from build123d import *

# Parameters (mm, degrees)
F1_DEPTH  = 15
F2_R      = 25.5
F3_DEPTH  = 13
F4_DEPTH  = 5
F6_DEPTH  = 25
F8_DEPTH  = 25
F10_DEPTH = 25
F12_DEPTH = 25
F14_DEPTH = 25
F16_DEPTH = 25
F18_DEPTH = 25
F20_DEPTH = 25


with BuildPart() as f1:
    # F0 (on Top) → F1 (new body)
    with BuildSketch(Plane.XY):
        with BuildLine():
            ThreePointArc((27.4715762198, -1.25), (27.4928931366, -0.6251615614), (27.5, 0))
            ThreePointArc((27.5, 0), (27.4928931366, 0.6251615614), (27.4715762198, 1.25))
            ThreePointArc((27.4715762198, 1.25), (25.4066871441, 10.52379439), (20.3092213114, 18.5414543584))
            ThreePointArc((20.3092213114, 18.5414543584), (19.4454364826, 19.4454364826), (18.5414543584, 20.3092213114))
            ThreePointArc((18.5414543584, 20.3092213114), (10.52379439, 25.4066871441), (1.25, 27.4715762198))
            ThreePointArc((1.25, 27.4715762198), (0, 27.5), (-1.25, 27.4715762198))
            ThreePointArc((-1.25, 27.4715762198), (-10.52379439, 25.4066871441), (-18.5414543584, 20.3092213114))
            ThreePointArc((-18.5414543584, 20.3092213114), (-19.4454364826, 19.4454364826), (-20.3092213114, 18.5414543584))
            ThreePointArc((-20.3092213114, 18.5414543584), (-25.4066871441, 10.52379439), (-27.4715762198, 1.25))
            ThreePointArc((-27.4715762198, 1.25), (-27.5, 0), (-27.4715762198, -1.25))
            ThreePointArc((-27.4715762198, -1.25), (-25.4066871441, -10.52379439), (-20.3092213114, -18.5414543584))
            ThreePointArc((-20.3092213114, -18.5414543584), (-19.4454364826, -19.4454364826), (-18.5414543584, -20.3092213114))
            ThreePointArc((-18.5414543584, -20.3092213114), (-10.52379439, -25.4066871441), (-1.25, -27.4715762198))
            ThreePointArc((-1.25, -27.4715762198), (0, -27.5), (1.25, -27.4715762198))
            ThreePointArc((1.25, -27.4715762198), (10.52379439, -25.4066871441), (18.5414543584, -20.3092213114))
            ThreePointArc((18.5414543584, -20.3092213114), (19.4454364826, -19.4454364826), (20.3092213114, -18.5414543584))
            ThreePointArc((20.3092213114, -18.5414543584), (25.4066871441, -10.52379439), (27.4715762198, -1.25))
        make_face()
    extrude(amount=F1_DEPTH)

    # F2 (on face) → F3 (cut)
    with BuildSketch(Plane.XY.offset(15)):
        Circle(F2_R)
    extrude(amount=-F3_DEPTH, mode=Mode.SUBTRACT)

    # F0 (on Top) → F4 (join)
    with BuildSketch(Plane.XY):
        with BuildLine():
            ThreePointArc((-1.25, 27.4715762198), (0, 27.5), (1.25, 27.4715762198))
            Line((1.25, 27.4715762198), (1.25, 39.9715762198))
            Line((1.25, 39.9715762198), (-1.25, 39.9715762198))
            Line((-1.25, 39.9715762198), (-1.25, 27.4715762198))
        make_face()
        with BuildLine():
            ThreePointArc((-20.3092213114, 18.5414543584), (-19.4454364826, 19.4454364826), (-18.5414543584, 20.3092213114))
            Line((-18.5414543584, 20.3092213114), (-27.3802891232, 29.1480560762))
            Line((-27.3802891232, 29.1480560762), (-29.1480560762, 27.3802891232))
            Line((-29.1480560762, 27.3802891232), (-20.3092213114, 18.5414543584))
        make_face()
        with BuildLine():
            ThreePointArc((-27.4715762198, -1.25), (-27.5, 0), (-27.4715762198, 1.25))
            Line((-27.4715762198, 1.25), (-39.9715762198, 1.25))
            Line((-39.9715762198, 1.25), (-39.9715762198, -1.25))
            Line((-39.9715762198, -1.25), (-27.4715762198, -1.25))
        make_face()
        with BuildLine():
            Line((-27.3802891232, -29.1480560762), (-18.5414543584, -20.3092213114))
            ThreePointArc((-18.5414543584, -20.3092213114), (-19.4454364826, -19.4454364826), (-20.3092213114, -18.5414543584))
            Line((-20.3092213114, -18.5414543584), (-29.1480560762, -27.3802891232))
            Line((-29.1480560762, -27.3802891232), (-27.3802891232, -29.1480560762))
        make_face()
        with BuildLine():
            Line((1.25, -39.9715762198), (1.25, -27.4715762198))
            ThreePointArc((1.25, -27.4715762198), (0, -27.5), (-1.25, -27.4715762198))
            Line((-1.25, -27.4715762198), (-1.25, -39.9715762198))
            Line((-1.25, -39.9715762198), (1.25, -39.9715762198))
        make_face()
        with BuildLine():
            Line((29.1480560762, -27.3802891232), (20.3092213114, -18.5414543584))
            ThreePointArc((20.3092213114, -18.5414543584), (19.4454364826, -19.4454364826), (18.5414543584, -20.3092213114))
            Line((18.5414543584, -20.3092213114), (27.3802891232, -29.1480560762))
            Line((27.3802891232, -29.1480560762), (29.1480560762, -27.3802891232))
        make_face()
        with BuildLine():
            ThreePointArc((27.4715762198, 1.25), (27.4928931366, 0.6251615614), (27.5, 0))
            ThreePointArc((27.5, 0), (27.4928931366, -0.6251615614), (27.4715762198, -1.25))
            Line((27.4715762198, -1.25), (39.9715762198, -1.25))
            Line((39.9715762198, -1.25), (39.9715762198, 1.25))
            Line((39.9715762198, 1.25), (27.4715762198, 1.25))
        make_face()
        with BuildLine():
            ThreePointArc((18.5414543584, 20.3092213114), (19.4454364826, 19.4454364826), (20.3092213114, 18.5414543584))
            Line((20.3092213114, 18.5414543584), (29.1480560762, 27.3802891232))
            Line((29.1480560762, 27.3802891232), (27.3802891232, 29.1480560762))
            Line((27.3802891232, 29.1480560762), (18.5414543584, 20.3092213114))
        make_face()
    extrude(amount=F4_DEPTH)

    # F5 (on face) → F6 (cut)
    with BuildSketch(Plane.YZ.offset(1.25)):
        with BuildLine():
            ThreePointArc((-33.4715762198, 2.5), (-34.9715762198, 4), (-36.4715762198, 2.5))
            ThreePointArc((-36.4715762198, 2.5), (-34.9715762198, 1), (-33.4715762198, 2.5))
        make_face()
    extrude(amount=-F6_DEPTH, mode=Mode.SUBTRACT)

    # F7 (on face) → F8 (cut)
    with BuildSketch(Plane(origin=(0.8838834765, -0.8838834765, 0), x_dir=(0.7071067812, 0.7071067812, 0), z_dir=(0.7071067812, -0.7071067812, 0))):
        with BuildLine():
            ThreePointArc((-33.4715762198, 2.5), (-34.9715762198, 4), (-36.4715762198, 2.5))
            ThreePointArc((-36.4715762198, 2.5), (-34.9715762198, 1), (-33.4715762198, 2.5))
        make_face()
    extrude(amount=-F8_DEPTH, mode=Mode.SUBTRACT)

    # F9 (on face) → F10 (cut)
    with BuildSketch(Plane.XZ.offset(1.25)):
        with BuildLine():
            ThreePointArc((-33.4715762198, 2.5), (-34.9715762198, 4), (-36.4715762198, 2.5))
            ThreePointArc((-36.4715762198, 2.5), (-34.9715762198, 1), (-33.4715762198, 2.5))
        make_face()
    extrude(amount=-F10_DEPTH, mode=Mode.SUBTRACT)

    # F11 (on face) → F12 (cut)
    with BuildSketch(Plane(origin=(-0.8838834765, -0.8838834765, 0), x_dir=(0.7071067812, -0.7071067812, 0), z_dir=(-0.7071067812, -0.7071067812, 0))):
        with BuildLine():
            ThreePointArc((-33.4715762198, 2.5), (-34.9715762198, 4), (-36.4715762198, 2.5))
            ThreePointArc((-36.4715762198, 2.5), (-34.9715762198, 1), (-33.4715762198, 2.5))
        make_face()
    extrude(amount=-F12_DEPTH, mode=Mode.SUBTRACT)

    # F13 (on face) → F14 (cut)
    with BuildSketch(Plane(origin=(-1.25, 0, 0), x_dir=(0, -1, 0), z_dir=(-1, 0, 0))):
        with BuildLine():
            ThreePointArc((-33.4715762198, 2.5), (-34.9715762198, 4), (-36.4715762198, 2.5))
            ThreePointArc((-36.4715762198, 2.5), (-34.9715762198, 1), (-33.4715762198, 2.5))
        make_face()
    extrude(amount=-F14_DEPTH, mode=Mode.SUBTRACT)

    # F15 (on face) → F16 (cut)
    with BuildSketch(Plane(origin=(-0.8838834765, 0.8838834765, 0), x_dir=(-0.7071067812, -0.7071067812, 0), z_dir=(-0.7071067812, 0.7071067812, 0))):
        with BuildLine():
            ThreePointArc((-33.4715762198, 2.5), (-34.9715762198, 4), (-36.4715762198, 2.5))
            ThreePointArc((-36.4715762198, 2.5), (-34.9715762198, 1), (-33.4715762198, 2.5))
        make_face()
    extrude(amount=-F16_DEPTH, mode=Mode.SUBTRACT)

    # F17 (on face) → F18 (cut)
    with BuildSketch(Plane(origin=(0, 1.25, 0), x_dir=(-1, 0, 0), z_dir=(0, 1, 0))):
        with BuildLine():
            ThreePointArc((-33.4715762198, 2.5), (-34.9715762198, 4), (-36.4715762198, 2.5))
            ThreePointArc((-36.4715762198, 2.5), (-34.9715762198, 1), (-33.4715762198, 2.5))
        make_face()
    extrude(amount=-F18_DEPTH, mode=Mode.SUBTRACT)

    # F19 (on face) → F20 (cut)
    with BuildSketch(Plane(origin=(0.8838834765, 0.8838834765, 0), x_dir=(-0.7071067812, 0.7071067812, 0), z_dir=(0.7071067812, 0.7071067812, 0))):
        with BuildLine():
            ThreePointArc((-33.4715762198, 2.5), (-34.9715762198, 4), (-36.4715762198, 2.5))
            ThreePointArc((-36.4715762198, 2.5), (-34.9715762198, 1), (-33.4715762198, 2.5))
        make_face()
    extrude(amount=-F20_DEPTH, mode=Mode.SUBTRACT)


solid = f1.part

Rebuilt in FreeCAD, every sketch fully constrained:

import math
import FreeCAD as App
import Part
import Sketcher
Q = App.Units.Quantity

doc = App.newDocument("Part")
params = doc.addObject("Spreadsheet::Sheet", "Params")
for row, (alias, value) in enumerate([
    ("sketch1_radius", "27.5 mm"),
    ("pad1_length", "15 mm"),
    ("sketch2_diameter", "51 mm"),
    ("pocket1_length", "13 mm"),
    ("sketch3_radius", "27.5 mm"),
    ("sketch3_width", "2.5 mm"),
    ("sketch3_width2", "12.5 mm"),
    ("sketch3_length", "12.5 mm"),
    ("sketch3_length2", "2.5 mm"),
    ("pad2_length", "5 mm"),
    ("sketch4_diameter", "3 mm"),
    ("pocket2_length", "25 mm"),
    ("sketch5_diameter", "3 mm"),
    ("pocket3_length", "25 mm"),
    ("sketch6_diameter", "3 mm"),
    ("pocket4_length", "25 mm"),
    ("sketch7_diameter", "3 mm"),
    ("pocket5_length", "25 mm"),
    ("sketch8_diameter", "3 mm"),
    ("pocket6_length", "25 mm"),
    ("sketch9_diameter", "3 mm"),
    ("pocket7_length", "25 mm"),
    ("sketch10_diameter", "3 mm"),
    ("pocket8_length", "25 mm"),
    ("sketch11_diameter", "3 mm"),
    ("pocket9_length", "25 mm"),
], start=1):
    params.set(f"A{row}", alias)
    params.set(f"B{row}", "=" + value)
    params.setAlias(f"B{row}", alias)

body = doc.addObject("PartDesign::Body", "Body")

# Sketch on XY plane
sketch1 = body.newObject("Sketcher::SketchObject", "Sketch")
sketch1.AttachmentSupport = (doc.getObject("XY_Plane"), [""])
sketch1.MapMode = "FlatFace"
sketch1.addGeometry([
    Part.ArcOfCircle(Part.Circle(App.Vector(0, 0, 0), App.Vector(0, 0, 1), 27.5), math.radians(-2.61), math.radians(0)),  # 0
    Part.ArcOfCircle(Part.Circle(App.Vector(0, 0, 0), App.Vector(0, 0, 1), 27.5), math.radians(0), math.radians(2.61)),  # 1
    Part.ArcOfCircle(Part.Circle(App.Vector(0, 0, 0), App.Vector(0, 0, 1), 27.5), math.radians(3), math.radians(42)),  # 2
    Part.ArcOfCircle(Part.Circle(App.Vector(0, 0, 0), App.Vector(0, 0, 1), 27.5), math.radians(42.39), math.radians(47.61)),  # 3
    Part.ArcOfCircle(Part.Circle(App.Vector(0, 0, 0), App.Vector(0, 0, 1), 27.5), math.radians(48), math.radians(87)),  # 4
    Part.ArcOfCircle(Part.Circle(App.Vector(0, 0, 0), App.Vector(0, 0, 1), 27.5), math.radians(87.39), math.radians(92.61)),  # 5
    Part.ArcOfCircle(Part.Circle(App.Vector(0, 0, 0), App.Vector(0, 0, 1), 27.5), math.radians(93), math.radians(132)),  # 6
    Part.ArcOfCircle(Part.Circle(App.Vector(0, 0, 0), App.Vector(0, 0, 1), 27.5), math.radians(132.39), math.radians(137.61)),  # 7
    Part.ArcOfCircle(Part.Circle(App.Vector(0, 0, 0), App.Vector(0, 0, 1), 27.5), math.radians(138), math.radians(177)),  # 8
    Part.ArcOfCircle(Part.Circle(App.Vector(0, 0, 0), App.Vector(0, 0, 1), 27.5), math.radians(177.39), math.radians(182.61)),  # 9
    Part.ArcOfCircle(Part.Circle(App.Vector(0, 0, 0), App.Vector(0, 0, 1), 27.5), math.radians(-177), math.radians(-138)),  # 10
    Part.ArcOfCircle(Part.Circle(App.Vector(0, 0, 0), App.Vector(0, 0, 1), 27.5), math.radians(-137.61), math.radians(-132.39)),  # 11
    Part.ArcOfCircle(Part.Circle(App.Vector(0, 0, 0), App.Vector(0, 0, 1), 27.5), math.radians(-132), math.radians(-93)),  # 12
    Part.ArcOfCircle(Part.Circle(App.Vector(0, 0, 0), App.Vector(0, 0, 1), 27.5), math.radians(-92.61), math.radians(-87.39)),  # 13
    Part.ArcOfCircle(Part.Circle(App.Vector(0, 0, 0), App.Vector(0, 0, 1), 27.5), math.radians(-87), math.radians(-48)),  # 14
    Part.ArcOfCircle(Part.Circle(App.Vector(0, 0, 0), App.Vector(0, 0, 1), 27.5), math.radians(-47.61), math.radians(-42.39)),  # 15
    Part.ArcOfCircle(Part.Circle(App.Vector(0, 0, 0), App.Vector(0, 0, 1), 27.5), math.radians(-42), math.radians(-3)),  # 16
], False)
sketch1.addConstraint([
    Sketcher.Constraint("Tangent", 0, 2, 1, 1),
    Sketcher.Constraint("Tangent", 1, 2, 2, 1),
    Sketcher.Constraint("Tangent", 2, 2, 3, 1),
    Sketcher.Constraint("Tangent", 3, 2, 4, 1),
    Sketcher.Constraint("Tangent", 4, 2, 5, 1),
    Sketcher.Constraint("Tangent", 5, 2, 6, 1),
    Sketcher.Constraint("Tangent", 6, 2, 7, 1),
    Sketcher.Constraint("Tangent", 7, 2, 8, 1),
    Sketcher.Constraint("Tangent", 8, 2, 9, 1),
    Sketcher.Constraint("Tangent", 9, 2, 10, 1),
    Sketcher.Constraint("Tangent", 10, 2, 11, 1),
    Sketcher.Constraint("Tangent", 11, 2, 12, 1),
    Sketcher.Constraint("Tangent", 12, 2, 13, 1),
    Sketcher.Constraint("Tangent", 13, 2, 14, 1),
    Sketcher.Constraint("Tangent", 14, 2, 15, 1),
    Sketcher.Constraint("Tangent", 15, 2, 16, 1),
    Sketcher.Constraint("Tangent", 16, 2, 0, 1),
    Sketcher.Constraint("Coincident", 0, 3, -1, 1),
    Sketcher.Constraint("Coincident", 2, 3, -1, 1),
    Sketcher.Constraint("Coincident", 4, 3, -1, 1),
    Sketcher.Constraint("Coincident", 6, 3, -1, 1),
    Sketcher.Constraint("Coincident", 8, 3, -1, 1),
    Sketcher.Constraint("Coincident", 10, 3, -1, 1),
    Sketcher.Constraint("Coincident", 12, 3, -1, 1),
    Sketcher.Constraint("Coincident", 14, 3, -1, 1),
    Sketcher.Constraint("PointOnObject", 0, 2, -1),
    Sketcher.Constraint("Horizontal", 4, 2, 5, 2),
    Sketcher.Constraint("Horizontal", 3, 2, 6, 2),
    Sketcher.Constraint("Horizontal", 2, 2, 7, 2),
    Sketcher.Constraint("Horizontal", 1, 2, 8, 2),
    Sketcher.Constraint("Horizontal", 12, 2, 13, 2),
    Sketcher.Constraint("Horizontal", 11, 2, 14, 2),
    Sketcher.Constraint("Horizontal", 10, 2, 15, 2),
    Sketcher.Constraint("Horizontal", 9, 2, 16, 2),
    Sketcher.Constraint("Vertical", 8, 2, 9, 2),
    Sketcher.Constraint("Vertical", 7, 2, 10, 2),
    Sketcher.Constraint("Vertical", 6, 2, 11, 2),
    Sketcher.Constraint("Vertical", 5, 2, 12, 2),
    Sketcher.Constraint("Radius", 0, Q("27.5 mm")),
    Sketcher.Constraint("DistanceX", 5, 2, 4, 2, Q("2.5 mm")),
    Sketcher.Constraint("DistanceY", 9, 2, 8, 2, Q("2.5 mm")),
    Sketcher.Constraint("DistanceX", -1, 1, 2, 2, Q("20.309221 mm")),
    Sketcher.Constraint("DistanceY", -1, 1, 3, 2, Q("20.309221 mm")),
])
sketch1.setExpression("Constraints[38]", "Params.sketch1_radius")
pad1 = body.newObject("PartDesign::Pad", "Pad")
pad1.Profile = sketch1
pad1.setExpression("Length", "Params.pad1_length")

# Sketch on XY plane
sketch2 = body.newObject("Sketcher::SketchObject", "Sketch001")
sketch2.AttachmentSupport = (doc.getObject("XY_Plane"), [""])
sketch2.MapMode = "FlatFace"
sketch2.AttachmentOffset = App.Placement(App.Vector(0, 0, 15), App.Rotation())
sketch2.addGeometry(Part.Circle(App.Vector(0, 0, 0), App.Vector(0, 0, 1), 26), False)
sketch2.addConstraint([
    Sketcher.Constraint("Coincident", 0, 3, -1, 1),
    Sketcher.Constraint("Diameter", 0, Q("51 mm")),
])
sketch2.setExpression("Constraints[1]", "Params.sketch2_diameter")
pocket1 = body.newObject("PartDesign::Pocket", "Pocket")
pocket1.Profile = sketch2
pocket1.setExpression("Length", "Params.pocket1_length")

# Sketch on XY plane
sketch3 = body.newObject("Sketcher::SketchObject", "Sketch002")
sketch3.AttachmentSupport = (doc.getObject("XY_Plane"), [""])
sketch3.MapMode = "FlatFace"
sketch3.addGeometry([
    Part.ArcOfCircle(Part.Circle(App.Vector(0, 0, 0), App.Vector(0, 0, 1), 27.5), math.radians(87.39), math.radians(92.61)),  # 0
    Part.LineSegment(App.Vector(1.2, 27.5, 0), App.Vector(1.2, 40, 0)),  # 1
    Part.LineSegment(App.Vector(1.2, 40, 0), App.Vector(-1.2, 40, 0)),  # 2
    Part.LineSegment(App.Vector(-1.2, 40, 0), App.Vector(-1.2, 27.5, 0)),  # 3
    Part.ArcOfCircle(Part.Circle(App.Vector(0, 0, 0), App.Vector(0, 0, 1), 27.5), math.radians(132.39), math.radians(137.61)),  # 4
    Part.LineSegment(App.Vector(-18.5, 20.3, 0), App.Vector(-27.4, 29.1, 0)),  # 5
    Part.LineSegment(App.Vector(-27.4, 29.1, 0), App.Vector(-29.1, 27.4, 0)),  # 6
    Part.LineSegment(App.Vector(-29.1, 27.4, 0), App.Vector(-20.3, 18.5, 0)),  # 7
    Part.ArcOfCircle(Part.Circle(App.Vector(0, 0, 0), App.Vector(0, 0, 1), 27.5), math.radians(177.39), math.radians(182.61)),  # 8
    Part.LineSegment(App.Vector(-27.5, 1.2, 0), App.Vector(-40, 1.2, 0)),  # 9
    Part.LineSegment(App.Vector(-40, 1.2, 0), App.Vector(-40, -1.2, 0)),  # 10
    Part.LineSegment(App.Vector(-40, -1.2, 0), App.Vector(-27.5, -1.2, 0)),  # 11
    Part.LineSegment(App.Vector(-27.4, -29.1, 0), App.Vector(-18.5, -20.3, 0)),  # 12
    Part.ArcOfCircle(Part.Circle(App.Vector(0, 0, 0), App.Vector(0, 0, 1), 27.5), math.radians(-137.61), math.radians(-132.39)),  # 13
    Part.LineSegment(App.Vector(-20.3, -18.5, 0), App.Vector(-29.1, -27.4, 0)),  # 14
    Part.LineSegment(App.Vector(-29.1, -27.4, 0), App.Vector(-27.4, -29.1, 0)),  # 15
    Part.LineSegment(App.Vector(1.2, -40, 0), App.Vector(1.2, -27.5, 0)),  # 16
    Part.ArcOfCircle(Part.Circle(App.Vector(0, 0, 0), App.Vector(0, 0, 1), 27.5), math.radians(-92.61), math.radians(-87.39)),  # 17
    Part.LineSegment(App.Vector(-1.2, -27.5, 0), App.Vector(-1.2, -40, 0)),  # 18
    Part.LineSegment(App.Vector(-1.2, -40, 0), App.Vector(1.2, -40, 0)),  # 19
    Part.LineSegment(App.Vector(29.1, -27.4, 0), App.Vector(20.3, -18.5, 0)),  # 20
    Part.ArcOfCircle(Part.Circle(App.Vector(0, 0, 0), App.Vector(0, 0, 1), 27.5), math.radians(-47.61), math.radians(-42.39)),  # 21
    Part.LineSegment(App.Vector(18.5, -20.3, 0), App.Vector(27.4, -29.1, 0)),  # 22
    Part.LineSegment(App.Vector(27.4, -29.1, 0), App.Vector(29.1, -27.4, 0)),  # 23
    Part.ArcOfCircle(Part.Circle(App.Vector(0, 0, 0), App.Vector(0, 0, 1), 27.5), math.radians(0), math.radians(2.61)),  # 24
    Part.ArcOfCircle(Part.Circle(App.Vector(0, 0, 0), App.Vector(0, 0, 1), 27.5), math.radians(-2.61), math.radians(0)),  # 25
    Part.LineSegment(App.Vector(27.5, -1.2, 0), App.Vector(40, -1.2, 0)),  # 26
    Part.LineSegment(App.Vector(40, -1.2, 0), App.Vector(40, 1.2, 0)),  # 27
    Part.LineSegment(App.Vector(40, 1.2, 0), App.Vector(27.5, 1.2, 0)),  # 28
    Part.ArcOfCircle(Part.Circle(App.Vector(0, 0, 0), App.Vector(0, 0, 1), 27.5), math.radians(42.39), math.radians(47.61)),  # 29
    Part.LineSegment(App.Vector(20.3, 18.5, 0), App.Vector(29.1, 27.4, 0)),  # 30
    Part.LineSegment(App.Vector(29.1, 27.4, 0), App.Vector(27.4, 29.1, 0)),  # 31
    Part.LineSegment(App.Vector(27.4, 29.1, 0), App.Vector(18.5, 20.3, 0)),  # 32
], False)
sketch3.addConstraint([
    Sketcher.Constraint("Coincident", 0, 1, 1, 1),
    Sketcher.Constraint("Coincident", 1, 2, 2, 1),
    Sketcher.Constraint("Coincident", 2, 2, 3, 1),
    Sketcher.Constraint("Coincident", 3, 2, 0, 2),
    Sketcher.Constraint("Coincident", 4, 1, 5, 1),
    Sketcher.Constraint("Coincident", 5, 2, 6, 1),
    Sketcher.Constraint("Coincident", 6, 2, 7, 1),
    Sketcher.Constraint("Coincident", 7, 2, 4, 2),
    Sketcher.Constraint("Coincident", 8, 1, 9, 1),
    Sketcher.Constraint("Coincident", 9, 2, 10, 1),
    Sketcher.Constraint("Coincident", 10, 2, 11, 1),
    Sketcher.Constraint("Coincident", 11, 2, 8, 2),
    Sketcher.Constraint("Coincident", 12, 2, 13, 2),
    Sketcher.Constraint("Coincident", 13, 1, 14, 1),
    Sketcher.Constraint("Coincident", 14, 2, 15, 1),
    Sketcher.Constraint("Coincident", 15, 2, 12, 1),
    Sketcher.Constraint("Coincident", 16, 2, 17, 2),
    Sketcher.Constraint("Coincident", 17, 1, 18, 1),
    Sketcher.Constraint("Coincident", 18, 2, 19, 1),
    Sketcher.Constraint("Coincident", 19, 2, 16, 1),
    Sketcher.Constraint("Coincident", 20, 2, 21, 2),
    Sketcher.Constraint("Coincident", 21, 1, 22, 1),
    Sketcher.Constraint("Coincident", 22, 2, 23, 1),
    Sketcher.Constraint("Coincident", 23, 2, 20, 1),
    Sketcher.Constraint("Tangent", 24, 1, 25, 2),
    Sketcher.Constraint("Coincident", 25, 1, 26, 1),
    Sketcher.Constraint("Coincident", 26, 2, 27, 1),
    Sketcher.Constraint("Coincident", 27, 2, 28, 1),
    Sketcher.Constraint("Coincident", 28, 2, 24, 2),
    Sketcher.Constraint("Coincident", 29, 1, 30, 1),
    Sketcher.Constraint("Coincident", 30, 2, 31, 1),
    Sketcher.Constraint("Coincident", 31, 2, 32, 1),
    Sketcher.Constraint("Coincident", 32, 2, 29, 2),
    Sketcher.Constraint("Vertical", 1),
    Sketcher.Constraint("Horizontal", 2),
    Sketcher.Constraint("Vertical", 3),
    Sketcher.Constraint("Horizontal", 9),
    Sketcher.Constraint("Vertical", 10),
    Sketcher.Constraint("Horizontal", 11),
    Sketcher.Constraint("Vertical", 16),
    Sketcher.Constraint("Vertical", 18),
    Sketcher.Constraint("Horizontal", 19),
    Sketcher.Constraint("Horizontal", 26),
    Sketcher.Constraint("Vertical", 27),
    Sketcher.Constraint("Horizontal", 28),
    Sketcher.Constraint("Coincident", 0, 3, -1, 1),
    Sketcher.Constraint("Coincident", 4, 3, -1, 1),
    Sketcher.Constraint("Coincident", 8, 3, -1, 1),
    Sketcher.Constraint("Coincident", 13, 3, -1, 1),
    Sketcher.Constraint("Coincident", 17, 3, -1, 1),
    Sketcher.Constraint("Coincident", 21, 3, -1, 1),
    Sketcher.Constraint("Coincident", 24, 3, -1, 1),
    Sketcher.Constraint("Coincident", 29, 3, -1, 1),
    Sketcher.Constraint("Equal", 0, 4),
    Sketcher.Constraint("Equal", 4, 8),
    Sketcher.Constraint("Equal", 8, 13),
    Sketcher.Constraint("Equal", 13, 17),
    Sketcher.Constraint("Equal", 17, 21),
    Sketcher.Constraint("Equal", 21, 24),
    Sketcher.Constraint("Equal", 24, 25),
    Sketcher.Constraint("Equal", 25, 29),
    Sketcher.Constraint("Symmetric", 1, 2, 18, 2, -1, 1),
    Sketcher.Constraint("Symmetric", 5, 2, 22, 2, -1, 1),
    Sketcher.Constraint("Symmetric", 6, 2, 23, 2, -1, 1),
    Sketcher.Constraint("Symmetric", 9, 2, 26, 2, -1, 1),
    Sketcher.Constraint("Symmetric", 14, 2, 30, 2, -1, 1),
    Sketcher.Constraint("Symmetric", 15, 2, 31, 2, -1, 1),
    Sketcher.Constraint("Symmetric", 15, 2, 22, 2, -2),
    Sketcher.Constraint("Symmetric", 14, 2, 23, 2, -2),
    Sketcher.Constraint("PointOnObject", 24, 1, -1),
    Sketcher.Constraint("Perpendicular", 5, 6),
    Sketcher.Constraint("Perpendicular", 6, 7),
    Sketcher.Constraint("Perpendicular", 7, 12),
    Sketcher.Constraint("Parallel", 12, 14),
    Sketcher.Constraint("Perpendicular", 14, 15),
    Sketcher.Constraint("Parallel", 15, 20),
    Sketcher.Constraint("Parallel", 20, 22),
    Sketcher.Constraint("Parallel", 23, 30),
    Sketcher.Constraint("Perpendicular", 31, 32),
    Sketcher.Constraint("Horizontal", 0, 1, 3, 2),
    Sketcher.Constraint("Horizontal", 16, 2, 17, 1),
    Sketcher.Constraint("Horizontal", 11, 2, 25, 1),
    Sketcher.Constraint("Horizontal", 9, 2, 27, 2),
    Sketcher.Constraint("Equal", 28, 1),
    Sketcher.Constraint("Equal", 19, 10),
    Sketcher.Constraint("Equal", 5, 7),
    Sketcher.Constraint("Radius", 0, Q("27.5 mm")),
    Sketcher.Constraint("DistanceX", 2, 2, 2, 1, Q("2.5 mm")),
    Sketcher.Constraint("DistanceX", 9, 2, 9, 1, Q("12.5 mm")),
    Sketcher.Constraint("Distance", 5, Q("12.5 mm")),
    Sketcher.Constraint("Distance", 6, Q("2.5 mm")),
])
sketch3.setExpression("Constraints[86]", "Params.sketch3_radius")
sketch3.setExpression("Constraints[87]", "Params.sketch3_width")
sketch3.setExpression("Constraints[88]", "Params.sketch3_width2")
sketch3.setExpression("Constraints[89]", "Params.sketch3_length")
sketch3.setExpression("Constraints[90]", "Params.sketch3_length2")
pad2 = body.newObject("PartDesign::Pad", "Pad001")
pad2.Profile = sketch3
pad2.setExpression("Length", "Params.pad2_length")

# Sketch on YZ plane
sketch4 = body.newObject("Sketcher::SketchObject", "Sketch003")
sketch4.AttachmentSupport = (doc.getObject("YZ_Plane"), [""])
sketch4.MapMode = "FlatFace"
sketch4.AttachmentOffset = App.Placement(App.Vector(0, 0, 1.25), App.Rotation())
sketch4.addGeometry(Part.Circle(App.Vector(-35, 2.5, 0), App.Vector(0, 0, 1), 1.5), False)
sketch4.addConstraint([
    Sketcher.Constraint("Diameter", 0, Q("3 mm")),
    Sketcher.Constraint("DistanceY", -1, 1, 0, 3, Q("2.5 mm")),
    Sketcher.Constraint("DistanceX", 0, 3, -1, 1, Q("34.971576 mm")),
])
sketch4.setExpression("Constraints[0]", "Params.sketch4_diameter")
pocket2 = body.newObject("PartDesign::Pocket", "Pocket001")
pocket2.Profile = sketch4
pocket2.setExpression("Length", "Params.pocket2_length")

# Sketch on an angled plane
sketch5 = body.newObject("Sketcher::SketchObject", "Sketch004")
sketch5.Placement = App.Placement(App.Vector(0.883883, -0.883883, 0), App.Rotation(App.Vector(0.707106781, 0.707106781, 0), App.Vector(0, 0, 0.999999999), App.Vector(0.707106781, -0.707106781, 0), "ZXY"))
sketch5.addGeometry(Part.Circle(App.Vector(-35, 2.5, 0), App.Vector(0, 0, 1), 1.5), False)
sketch5.addConstraint([
    Sketcher.Constraint("Diameter", 0, Q("3 mm")),
    Sketcher.Constraint("DistanceY", -1, 1, 0, 3, Q("2.5 mm")),
    Sketcher.Constraint("DistanceX", 0, 3, -1, 1, Q("34.971576 mm")),
])
sketch5.setExpression("Constraints[0]", "Params.sketch5_diameter")
pocket3 = body.newObject("PartDesign::Pocket", "Pocket002")
pocket3.Profile = sketch5
pocket3.setExpression("Length", "Params.pocket3_length")

# Sketch on XZ plane
sketch6 = body.newObject("Sketcher::SketchObject", "Sketch005")
sketch6.AttachmentSupport = (doc.getObject("XZ_Plane"), [""])
sketch6.MapMode = "FlatFace"
sketch6.AttachmentOffset = App.Placement(App.Vector(0, 0, 1.25), App.Rotation())
sketch6.addGeometry(Part.Circle(App.Vector(-35, 2.5, 0), App.Vector(0, 0, 1), 1.5), False)
sketch6.addConstraint([
    Sketcher.Constraint("Diameter", 0, Q("3 mm")),
    Sketcher.Constraint("DistanceY", -1, 1, 0, 3, Q("2.5 mm")),
    Sketcher.Constraint("DistanceX", 0, 3, -1, 1, Q("34.971576 mm")),
])
sketch6.setExpression("Constraints[0]", "Params.sketch6_diameter")
pocket4 = body.newObject("PartDesign::Pocket", "Pocket003")
pocket4.Profile = sketch6
pocket4.setExpression("Length", "Params.pocket4_length")

# Sketch on an angled plane
sketch7 = body.newObject("Sketcher::SketchObject", "Sketch006")
sketch7.Placement = App.Placement(App.Vector(-0.883883, -0.883883, 0), App.Rotation(App.Vector(0.707106781, -0.707106781, 0), App.Vector(0, 0, 0.999999999), App.Vector(-0.707106781, -0.707106781, 0), "ZXY"))
sketch7.addGeometry(Part.Circle(App.Vector(-35, 2.5, 0), App.Vector(0, 0, 1), 1.5), False)
sketch7.addConstraint([
    Sketcher.Constraint("Diameter", 0, Q("3 mm")),
    Sketcher.Constraint("DistanceY", -1, 1, 0, 3, Q("2.5 mm")),
    Sketcher.Constraint("DistanceX", 0, 3, -1, 1, Q("34.971576 mm")),
])
sketch7.setExpression("Constraints[0]", "Params.sketch7_diameter")
pocket5 = body.newObject("PartDesign::Pocket", "Pocket004")
pocket5.Profile = sketch7
pocket5.setExpression("Length", "Params.pocket5_length")

# Sketch on YZ plane
sketch8 = body.newObject("Sketcher::SketchObject", "Sketch007")
sketch8.AttachmentSupport = (doc.getObject("YZ_Plane"), [""])
sketch8.MapMode = "FlatFace"
sketch8.AttachmentOffset = App.Placement(App.Vector(0, 0, -1.25), App.Rotation())
sketch8.addGeometry(Part.Circle(App.Vector(35, 2.5, 0), App.Vector(0, 0, 1), 1.5), False)
sketch8.addConstraint([
    Sketcher.Constraint("Diameter", 0, Q("3 mm")),
    Sketcher.Constraint("DistanceY", -1, 1, 0, 3, Q("2.5 mm")),
    Sketcher.Constraint("DistanceX", -1, 1, 0, 3, Q("34.971576 mm")),
])
sketch8.setExpression("Constraints[0]", "Params.sketch8_diameter")
pocket6 = body.newObject("PartDesign::Pocket", "Pocket005")
pocket6.Profile = sketch8
pocket6.setExpression("Length", "Params.pocket6_length")
pocket6.Reversed = True

# Sketch on an angled plane
sketch9 = body.newObject("Sketcher::SketchObject", "Sketch008")
sketch9.Placement = App.Placement(App.Vector(-0.883883, 0.883883, 0), App.Rotation(App.Vector(-0.707106781, -0.707106781, 0), App.Vector(0, 0, 0.999999999), App.Vector(-0.707106781, 0.707106781, 0), "ZXY"))
sketch9.addGeometry(Part.Circle(App.Vector(-35, 2.5, 0), App.Vector(0, 0, 1), 1.5), False)
sketch9.addConstraint([
    Sketcher.Constraint("Diameter", 0, Q("3 mm")),
    Sketcher.Constraint("DistanceY", -1, 1, 0, 3, Q("2.5 mm")),
    Sketcher.Constraint("DistanceX", 0, 3, -1, 1, Q("34.971576 mm")),
])
sketch9.setExpression("Constraints[0]", "Params.sketch9_diameter")
pocket7 = body.newObject("PartDesign::Pocket", "Pocket006")
pocket7.Profile = sketch9
pocket7.setExpression("Length", "Params.pocket7_length")

# Sketch on XZ plane
sketch10 = body.newObject("Sketcher::SketchObject", "Sketch009")
sketch10.AttachmentSupport = (doc.getObject("XZ_Plane"), [""])
sketch10.MapMode = "FlatFace"
sketch10.AttachmentOffset = App.Placement(App.Vector(0, 0, -1.25), App.Rotation())
sketch10.addGeometry(Part.Circle(App.Vector(35, 2.5, 0), App.Vector(0, 0, 1), 1.5), False)
sketch10.addConstraint([
    Sketcher.Constraint("Diameter", 0, Q("3 mm")),
    Sketcher.Constraint("DistanceY", -1, 1, 0, 3, Q("2.5 mm")),
    Sketcher.Constraint("DistanceX", -1, 1, 0, 3, Q("34.971576 mm")),
])
sketch10.setExpression("Constraints[0]", "Params.sketch10_diameter")
pocket8 = body.newObject("PartDesign::Pocket", "Pocket007")
pocket8.Profile = sketch10
pocket8.setExpression("Length", "Params.pocket8_length")
pocket8.Reversed = True

# Sketch on an angled plane
sketch11 = body.newObject("Sketcher::SketchObject", "Sketch010")
sketch11.Placement = App.Placement(App.Vector(0.883883, 0.883883, 0), App.Rotation(App.Vector(-0.707106781, 0.707106781, 0), App.Vector(0, 0, 0.999999999), App.Vector(0.707106781, 0.707106781, 0), "ZXY"))
sketch11.addGeometry(Part.Circle(App.Vector(-35, 2.5, 0), App.Vector(0, 0, 1), 1.5), False)
sketch11.addConstraint([
    Sketcher.Constraint("Diameter", 0, Q("3 mm")),
    Sketcher.Constraint("DistanceY", -1, 1, 0, 3, Q("2.5 mm")),
    Sketcher.Constraint("DistanceX", 0, 3, -1, 1, Q("34.971576 mm")),
])
sketch11.setExpression("Constraints[0]", "Params.sketch11_diameter")
pocket9 = body.newObject("PartDesign::Pocket", "Pocket008")
pocket9.Profile = sketch11
pocket9.setExpression("Length", "Params.pocket9_length")

doc.recompute()
